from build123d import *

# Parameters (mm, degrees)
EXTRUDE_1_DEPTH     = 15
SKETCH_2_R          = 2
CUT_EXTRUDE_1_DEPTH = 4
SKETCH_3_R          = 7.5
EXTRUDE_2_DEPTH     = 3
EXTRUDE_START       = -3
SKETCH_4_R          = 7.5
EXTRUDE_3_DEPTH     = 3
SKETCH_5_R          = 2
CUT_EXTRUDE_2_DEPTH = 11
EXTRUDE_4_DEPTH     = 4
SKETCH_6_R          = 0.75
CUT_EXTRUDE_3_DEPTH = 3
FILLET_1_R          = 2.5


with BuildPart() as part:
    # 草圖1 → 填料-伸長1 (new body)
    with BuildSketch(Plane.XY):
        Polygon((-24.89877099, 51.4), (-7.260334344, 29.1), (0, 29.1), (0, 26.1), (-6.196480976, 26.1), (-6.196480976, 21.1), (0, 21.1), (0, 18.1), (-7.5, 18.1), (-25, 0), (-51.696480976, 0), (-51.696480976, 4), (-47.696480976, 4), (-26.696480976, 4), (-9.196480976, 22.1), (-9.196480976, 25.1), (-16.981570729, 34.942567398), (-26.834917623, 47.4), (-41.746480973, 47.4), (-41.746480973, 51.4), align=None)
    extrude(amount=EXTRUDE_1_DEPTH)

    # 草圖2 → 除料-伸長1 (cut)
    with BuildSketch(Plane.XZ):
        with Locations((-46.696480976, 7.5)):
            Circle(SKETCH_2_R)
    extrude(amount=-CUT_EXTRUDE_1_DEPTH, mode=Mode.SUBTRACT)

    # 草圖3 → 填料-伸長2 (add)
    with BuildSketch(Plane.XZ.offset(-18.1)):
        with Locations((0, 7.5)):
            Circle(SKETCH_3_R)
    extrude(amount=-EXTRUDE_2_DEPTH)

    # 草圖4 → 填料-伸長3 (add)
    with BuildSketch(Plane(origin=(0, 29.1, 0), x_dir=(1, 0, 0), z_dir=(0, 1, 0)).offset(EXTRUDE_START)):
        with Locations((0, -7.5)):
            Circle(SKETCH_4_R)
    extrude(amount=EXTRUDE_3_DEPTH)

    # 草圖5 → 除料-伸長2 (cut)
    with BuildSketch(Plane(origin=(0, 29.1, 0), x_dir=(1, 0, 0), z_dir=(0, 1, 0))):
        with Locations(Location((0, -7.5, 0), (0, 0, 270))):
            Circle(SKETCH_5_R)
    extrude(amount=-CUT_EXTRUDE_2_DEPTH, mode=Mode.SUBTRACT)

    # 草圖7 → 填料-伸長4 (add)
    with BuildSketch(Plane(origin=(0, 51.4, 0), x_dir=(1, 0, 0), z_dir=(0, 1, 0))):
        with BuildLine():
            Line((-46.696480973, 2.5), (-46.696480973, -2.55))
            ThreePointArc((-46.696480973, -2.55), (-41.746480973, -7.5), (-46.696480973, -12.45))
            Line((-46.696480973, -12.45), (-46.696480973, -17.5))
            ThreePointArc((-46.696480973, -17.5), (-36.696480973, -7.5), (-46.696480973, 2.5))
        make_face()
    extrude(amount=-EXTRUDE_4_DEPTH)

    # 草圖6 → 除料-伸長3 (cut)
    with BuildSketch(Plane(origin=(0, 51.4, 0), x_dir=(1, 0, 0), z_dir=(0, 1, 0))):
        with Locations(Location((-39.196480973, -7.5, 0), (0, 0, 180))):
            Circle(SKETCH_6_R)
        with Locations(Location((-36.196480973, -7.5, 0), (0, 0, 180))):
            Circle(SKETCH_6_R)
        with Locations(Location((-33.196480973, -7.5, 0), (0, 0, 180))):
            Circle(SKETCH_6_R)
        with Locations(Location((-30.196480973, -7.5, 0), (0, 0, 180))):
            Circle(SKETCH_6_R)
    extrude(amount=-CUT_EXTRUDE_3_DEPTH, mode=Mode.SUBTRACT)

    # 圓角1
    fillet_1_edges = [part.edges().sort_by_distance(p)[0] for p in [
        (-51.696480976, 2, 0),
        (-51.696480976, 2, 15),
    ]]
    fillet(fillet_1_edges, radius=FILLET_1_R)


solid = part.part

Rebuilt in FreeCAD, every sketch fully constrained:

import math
import FreeCAD as App
import Part
import Sketcher
Q = App.Units.Quantity


def edges_at(feature, points):
    """Names of the edges that pass closest to the given points."""
    edges = feature.Shape.Edges
    near = lambda p: min(range(len(edges)), key=lambda i: edges[i].distToShape(Part.Vertex(*p))[0])
    return sorted({f"Edge{near(p) + 1}" for p in points})


def add_polygon(sketch, points):
    """Adds a closed chain of lines whose ends are joined by coincident constraints."""
    first, n = sketch.GeometryCount, len(points)
    for a, b in zip(points, points[1:] + points[:1]):
        sketch.addGeometry(Part.LineSegment(App.Vector(*a, 0), App.Vector(*b, 0)), False)
    for i in range(n):
        sketch.addConstraint(Sketcher.Constraint("Coincident", first + i, 2, first + (i + 1) % n, 1))

doc = App.newDocument("Part")
body = doc.addObject("PartDesign::Body", "Body")

# Sketch on XY plane
sketch1 = body.newObject("Sketcher::SketchObject", "Sketch")
sketch1.AttachmentSupport = (doc.getObject("XY_Plane"), [""])
sketch1.MapMode = "FlatFace"
add_polygon(sketch1, [(-7.3, 29.1), (-24.9, 51.4), (-41.7, 51.4), (-41.7, 47.4), (-26.8, 47.4), (-17, 34.9), (-9.2, 25.1), (-9.2, 22.1), (-26.7, 4), (-51.7, 4), (-51.7, 0), (-25, 0), (-7.5, 18.1), (0, 18.1), (0, 21.1), (-6.2, 21.1), (-6.2, 26.1), (0, 26.1), (0, 29.1)])  # lines 0-18
sketch1.addConstraint([
    Sketcher.Constraint("Horizontal", 1),
    Sketcher.Constraint("Vertical", 2),
    Sketcher.Constraint("Horizontal", 3),
    Sketcher.Constraint("Vertical", 6),
    Sketcher.Constraint("Horizontal", 8),
    Sketcher.Constraint("Vertical", 9),
    Sketcher.Constraint("Horizontal", 10),
    Sketcher.Constraint("Horizontal", 12),
    Sketcher.Constraint("Vertical", 13),
    Sketcher.Constraint("Horizontal", 14),
    Sketcher.Constraint("Vertical", 15),
    Sketcher.Constraint("Horizontal", 16),
    Sketcher.Constraint("Vertical", 17),
    Sketcher.Constraint("Horizontal", 18),
    Sketcher.Constraint("PointOnObject", 9, 2, -1),
    Sketcher.Constraint("PointOnObject", 12, 2, -2),
    Sketcher.Constraint("PointOnObject", 16, 2, -2),
    Sketcher.Constraint("Parallel", 0, 4),
    Sketcher.Constraint("Parallel", 4, 5),
    Sketcher.Constraint("Parallel", 7, 11),
    Sketcher.Constraint("Equal", 2, 9),
    Sketcher.Constraint("Equal", 6, 13),
    Sketcher.Constraint("Equal", 13, 17),
    Sketcher.Constraint("Equal", 7, 11),
    Sketcher.Constraint("DistanceX", 8, 2, 8, 1, Q("25 mm")),
    Sketcher.Constraint("DistanceY", 2, 2, 2, 1, Q("4 mm")),
    Sketcher.Constraint("DistanceY", 6, 2, 6, 1, Q("3 mm")),
    Sketcher.Constraint("DistanceY", 15, 1, 15, 2, Q("5 mm")),
    Sketcher.Constraint("DistanceX", 12, 1, 12, 2, Q("7.5 mm")),
    Sketcher.Constraint("DistanceX", 10, 2, -1, 1, Q("25 mm")),
    Sketcher.Constraint("DistanceX", 6, 2, 14, 2, Q("3 mm")),
    Sketcher.Constraint("DistanceY", -1, 1, 0, 2, Q("51.4 mm")),
    Sketcher.Constraint("DistanceY", -1, 1, 5, 2, Q("25.1 mm")),
    Sketcher.Constraint("DistanceX", 2, 2, 5, 2, Q("32.55 mm")),
    Sketcher.Constraint("Distance", 4, Q("15.883201 mm")),
    Sketcher.Constraint("DistanceX", 1, 2, 1, 1, Q("16.84771 mm")),
    Sketcher.Constraint("DistanceX", 10, 1, 10, 2, Q("26.696481 mm")),
    Sketcher.Constraint("DistanceX", 0, 2, 4, 2, Q("7.9172 mm")),
])
pad1 = body.newObject("PartDesign::Pad", "Pad")
pad1.Profile = sketch1
pad1.Length = 15

# Sketch on XZ plane
sketch2 = body.newObject("Sketcher::SketchObject", "Sketch001")
sketch2.AttachmentSupport = (doc.getObject("XZ_Plane"), [""])
sketch2.MapMode = "FlatFace"
sketch2.addGeometry(Part.Circle(App.Vector(-46.7, 7.5, 0), App.Vector(0, 0, 1), 2), False)
sketch2.addConstraint([
    Sketcher.Constraint("Diameter", 0, Q("4 mm")),
    Sketcher.Constraint("DistanceY", -1, 1, 0, 3, Q("7.5 mm")),
    Sketcher.Constraint("DistanceX", 0, 3, -1, 1, Q("46.696481 mm")),
])
pocket1 = body.newObject("PartDesign::Pocket", "Pocket")
pocket1.Profile = sketch2
pocket1.Length = 4

# Sketch on XZ plane
sketch3 = body.newObject("Sketcher::SketchObject", "Sketch002")
sketch3.AttachmentSupport = (doc.getObject("XZ_Plane"), [""])
sketch3.MapMode = "FlatFace"
sketch3.AttachmentOffset = App.Placement(App.Vector(0, 0, -18.1), App.Rotation())
sketch3.addGeometry(Part.Circle(App.Vector(0, 8, 0), App.Vector(0, 0, 1), 8), False)
sketch3.addConstraint([
    Sketcher.Constraint("PointOnObject", 0, 3, -2),
    Sketcher.Constraint("Diameter", 0, Q("15 mm")),
    Sketcher.Constraint("DistanceY", -1, 1, 0, 3, Q("7.5 mm")),
])
pad2 = body.newObject("PartDesign::Pad", "Pad001")
pad2.Profile = sketch3
pad2.Length = 3
pad2.Reversed = True

# Sketch on XZ plane
sketch4 = body.newObject("Sketcher::SketchObject", "Sketch003")
sketch4.AttachmentSupport = (doc.getObject("XZ_Plane"), [""])
sketch4.MapMode = "FlatFace"
sketch4.AttachmentOffset = App.Placement(App.Vector(0, 0, -26.1), App.Rotation())
sketch4.addGeometry(Part.Circle(App.Vector(0, 8, 0), App.Vector(0, 0, 1), 8), False)
sketch4.addConstraint([
    Sketcher.Constraint("PointOnObject", 0, 3, -2),
    Sketcher.Constraint("Diameter", 0, Q("15 mm")),
    Sketcher.Constraint("DistanceY", -1, 1, 0, 3, Q("7.5 mm")),
])
pad3 = body.newObject("PartDesign::Pad", "Pad002")
pad3.Profile = sketch4
pad3.Length = 3
pad3.Reversed = True

# Sketch on XZ plane
sketch5 = body.newObject("Sketcher::SketchObject", "Sketch004")
sketch5.AttachmentSupport = (doc.getObject("XZ_Plane"), [""])
sketch5.MapMode = "FlatFace"
sketch5.AttachmentOffset = App.Placement(App.Vector(0, 0, -29.1), App.Rotation())
sketch5.addGeometry(Part.Circle(App.Vector(0, 7.5, 0), App.Vector(0, 0, 1), 2), False)
sketch5.addConstraint([
    Sketcher.Constraint("PointOnObject", 0, 3, -2),
    Sketcher.Constraint("Diameter", 0, Q("4 mm")),
    Sketcher.Constraint("DistanceY", -1, 1, 0, 3, Q("7.5 mm")),
])
pocket2 = body.newObject("PartDesign::Pocket", "Pocket001")
pocket2.Profile = sketch5
pocket2.Length = 11
pocket2.Reversed = True

# Sketch on XZ plane
sketch6 = body.newObject("Sketcher::SketchObject", "Sketch005")
sketch6.AttachmentSupport = (doc.getObject("XZ_Plane"), [""])
sketch6.MapMode = "FlatFace"
sketch6.AttachmentOffset = App.Placement(App.Vector(0, 0, -51.4), App.Rotation())
sketch6.addGeometry([
    Part.LineSegment(App.Vector(-46.7, -2.5, 0), App.Vector(-46.7, 2.5, 0)),
    Part.ArcOfCircle(Part.Circle(App.Vector(-46.7, 7.5, 0), App.Vector(0, 0, 1), 5), math.radians(-90), math.radians(90)),
    Part.LineSegment(App.Vector(-46.7, 12.4, 0), App.Vector(-46.7, 17.5, 0)),
    Part.ArcOfCircle(Part.Circle(App.Vector(-46.7, 7.5, 0), App.Vector(0, 0, 1), 10), math.radians(-90), math.radians(90)),
], False)
sketch6.addConstraint([
    Sketcher.Constraint("Coincident", 0, 2, 1, 1),
    Sketcher.Constraint("Coincident", 1, 2, 2, 1),
    Sketcher.Constraint("Coincident", 2, 2, 3, 2),
    Sketcher.Constraint("Coincident", 3, 1, 0, 1),
    Sketcher.Constraint("Vertical", 0),
    Sketcher.Constraint("Vertical", 2),
    Sketcher.Constraint("Coincident", 3, 3, 1, 3),
    Sketcher.Constraint("Vertical", 3, 3, 0, 2),
    Sketcher.Constraint("Vertical", 0, 2, 1, 2),
    Sketcher.Constraint("Radius", 3, Q("10 mm")),
    Sketcher.Constraint("Radius", 1, Q("4.95 mm")),
    Sketcher.Constraint("DistanceY", -1, 1, 1, 3, Q("7.5 mm")),
    Sketcher.Constraint("DistanceX", 1, 3, -1, 1, Q("46.696481 mm")),
])
pad4 = body.newObject("PartDesign::Pad", "Pad003")
pad4.Profile = sketch6
pad4.Length = 4

# Sketch on XZ plane
sketch7 = body.newObject("Sketcher::SketchObject", "Sketch006")
sketch7.AttachmentSupport = (doc.getObject("XZ_Plane"), [""])
sketch7.MapMode = "FlatFace"
sketch7.AttachmentOffset = App.Placement(App.Vector(0, 0, -51.4), App.Rotation())
sketch7.addGeometry([
    Part.Circle(App.Vector(-39.2, 7.5, 0), App.Vector(0, 0, 1), 0.8),
    Part.Circle(App.Vector(-36.2, 7.5, 0), App.Vector(0, 0, 1), 0.8),
    Part.Circle(App.Vector(-33.2, 7.5, 0), App.Vector(0, 0, 1), 0.8),
    Part.Circle(App.Vector(-30.2, 7.5, 0), App.Vector(0, 0, 1), 0.8),
], False)
sketch7.addConstraint([
    Sketcher.Constraint("Equal", 0, 1),
    Sketcher.Constraint("Equal", 1, 2),
    Sketcher.Constraint("Equal", 2, 3),
    Sketcher.Constraint("Horizontal", 0, 3, 1, 3),
    Sketcher.Constraint("Horizontal", 1, 3, 2, 3),
    Sketcher.Constraint("Horizontal", 2, 3, 3, 3),
    Sketcher.Constraint("Diameter", 0, Q("1.5 mm")),
    Sketcher.Constraint("DistanceX", 0, 3, 1, 3, Q("3 mm")),
    Sketcher.Constraint("DistanceX", 1, 3, 2, 3, Q("3 mm")),
    Sketcher.Constraint("DistanceX", 2, 3, 3, 3, Q("3 mm")),
    Sketcher.Constraint("DistanceY", -1, 1, 0, 3, Q("7.5 mm")),
    Sketcher.Constraint("DistanceX", 0, 3, -1, 1, Q("39.196481 mm")),
])
pocket3 = body.newObject("PartDesign::Pocket", "Pocket002")
pocket3.Profile = sketch7
pocket3.Length = 3
pocket3.Reversed = True
doc.recompute()

fillet = body.newObject("PartDesign::Fillet", "Fillet")
fillet.Base = (pocket3, edges_at(pocket3, [(-51.696, 2, 0), (-51.696, 2, 15)]))
fillet.Radius = 2.5

doc.recompute()
